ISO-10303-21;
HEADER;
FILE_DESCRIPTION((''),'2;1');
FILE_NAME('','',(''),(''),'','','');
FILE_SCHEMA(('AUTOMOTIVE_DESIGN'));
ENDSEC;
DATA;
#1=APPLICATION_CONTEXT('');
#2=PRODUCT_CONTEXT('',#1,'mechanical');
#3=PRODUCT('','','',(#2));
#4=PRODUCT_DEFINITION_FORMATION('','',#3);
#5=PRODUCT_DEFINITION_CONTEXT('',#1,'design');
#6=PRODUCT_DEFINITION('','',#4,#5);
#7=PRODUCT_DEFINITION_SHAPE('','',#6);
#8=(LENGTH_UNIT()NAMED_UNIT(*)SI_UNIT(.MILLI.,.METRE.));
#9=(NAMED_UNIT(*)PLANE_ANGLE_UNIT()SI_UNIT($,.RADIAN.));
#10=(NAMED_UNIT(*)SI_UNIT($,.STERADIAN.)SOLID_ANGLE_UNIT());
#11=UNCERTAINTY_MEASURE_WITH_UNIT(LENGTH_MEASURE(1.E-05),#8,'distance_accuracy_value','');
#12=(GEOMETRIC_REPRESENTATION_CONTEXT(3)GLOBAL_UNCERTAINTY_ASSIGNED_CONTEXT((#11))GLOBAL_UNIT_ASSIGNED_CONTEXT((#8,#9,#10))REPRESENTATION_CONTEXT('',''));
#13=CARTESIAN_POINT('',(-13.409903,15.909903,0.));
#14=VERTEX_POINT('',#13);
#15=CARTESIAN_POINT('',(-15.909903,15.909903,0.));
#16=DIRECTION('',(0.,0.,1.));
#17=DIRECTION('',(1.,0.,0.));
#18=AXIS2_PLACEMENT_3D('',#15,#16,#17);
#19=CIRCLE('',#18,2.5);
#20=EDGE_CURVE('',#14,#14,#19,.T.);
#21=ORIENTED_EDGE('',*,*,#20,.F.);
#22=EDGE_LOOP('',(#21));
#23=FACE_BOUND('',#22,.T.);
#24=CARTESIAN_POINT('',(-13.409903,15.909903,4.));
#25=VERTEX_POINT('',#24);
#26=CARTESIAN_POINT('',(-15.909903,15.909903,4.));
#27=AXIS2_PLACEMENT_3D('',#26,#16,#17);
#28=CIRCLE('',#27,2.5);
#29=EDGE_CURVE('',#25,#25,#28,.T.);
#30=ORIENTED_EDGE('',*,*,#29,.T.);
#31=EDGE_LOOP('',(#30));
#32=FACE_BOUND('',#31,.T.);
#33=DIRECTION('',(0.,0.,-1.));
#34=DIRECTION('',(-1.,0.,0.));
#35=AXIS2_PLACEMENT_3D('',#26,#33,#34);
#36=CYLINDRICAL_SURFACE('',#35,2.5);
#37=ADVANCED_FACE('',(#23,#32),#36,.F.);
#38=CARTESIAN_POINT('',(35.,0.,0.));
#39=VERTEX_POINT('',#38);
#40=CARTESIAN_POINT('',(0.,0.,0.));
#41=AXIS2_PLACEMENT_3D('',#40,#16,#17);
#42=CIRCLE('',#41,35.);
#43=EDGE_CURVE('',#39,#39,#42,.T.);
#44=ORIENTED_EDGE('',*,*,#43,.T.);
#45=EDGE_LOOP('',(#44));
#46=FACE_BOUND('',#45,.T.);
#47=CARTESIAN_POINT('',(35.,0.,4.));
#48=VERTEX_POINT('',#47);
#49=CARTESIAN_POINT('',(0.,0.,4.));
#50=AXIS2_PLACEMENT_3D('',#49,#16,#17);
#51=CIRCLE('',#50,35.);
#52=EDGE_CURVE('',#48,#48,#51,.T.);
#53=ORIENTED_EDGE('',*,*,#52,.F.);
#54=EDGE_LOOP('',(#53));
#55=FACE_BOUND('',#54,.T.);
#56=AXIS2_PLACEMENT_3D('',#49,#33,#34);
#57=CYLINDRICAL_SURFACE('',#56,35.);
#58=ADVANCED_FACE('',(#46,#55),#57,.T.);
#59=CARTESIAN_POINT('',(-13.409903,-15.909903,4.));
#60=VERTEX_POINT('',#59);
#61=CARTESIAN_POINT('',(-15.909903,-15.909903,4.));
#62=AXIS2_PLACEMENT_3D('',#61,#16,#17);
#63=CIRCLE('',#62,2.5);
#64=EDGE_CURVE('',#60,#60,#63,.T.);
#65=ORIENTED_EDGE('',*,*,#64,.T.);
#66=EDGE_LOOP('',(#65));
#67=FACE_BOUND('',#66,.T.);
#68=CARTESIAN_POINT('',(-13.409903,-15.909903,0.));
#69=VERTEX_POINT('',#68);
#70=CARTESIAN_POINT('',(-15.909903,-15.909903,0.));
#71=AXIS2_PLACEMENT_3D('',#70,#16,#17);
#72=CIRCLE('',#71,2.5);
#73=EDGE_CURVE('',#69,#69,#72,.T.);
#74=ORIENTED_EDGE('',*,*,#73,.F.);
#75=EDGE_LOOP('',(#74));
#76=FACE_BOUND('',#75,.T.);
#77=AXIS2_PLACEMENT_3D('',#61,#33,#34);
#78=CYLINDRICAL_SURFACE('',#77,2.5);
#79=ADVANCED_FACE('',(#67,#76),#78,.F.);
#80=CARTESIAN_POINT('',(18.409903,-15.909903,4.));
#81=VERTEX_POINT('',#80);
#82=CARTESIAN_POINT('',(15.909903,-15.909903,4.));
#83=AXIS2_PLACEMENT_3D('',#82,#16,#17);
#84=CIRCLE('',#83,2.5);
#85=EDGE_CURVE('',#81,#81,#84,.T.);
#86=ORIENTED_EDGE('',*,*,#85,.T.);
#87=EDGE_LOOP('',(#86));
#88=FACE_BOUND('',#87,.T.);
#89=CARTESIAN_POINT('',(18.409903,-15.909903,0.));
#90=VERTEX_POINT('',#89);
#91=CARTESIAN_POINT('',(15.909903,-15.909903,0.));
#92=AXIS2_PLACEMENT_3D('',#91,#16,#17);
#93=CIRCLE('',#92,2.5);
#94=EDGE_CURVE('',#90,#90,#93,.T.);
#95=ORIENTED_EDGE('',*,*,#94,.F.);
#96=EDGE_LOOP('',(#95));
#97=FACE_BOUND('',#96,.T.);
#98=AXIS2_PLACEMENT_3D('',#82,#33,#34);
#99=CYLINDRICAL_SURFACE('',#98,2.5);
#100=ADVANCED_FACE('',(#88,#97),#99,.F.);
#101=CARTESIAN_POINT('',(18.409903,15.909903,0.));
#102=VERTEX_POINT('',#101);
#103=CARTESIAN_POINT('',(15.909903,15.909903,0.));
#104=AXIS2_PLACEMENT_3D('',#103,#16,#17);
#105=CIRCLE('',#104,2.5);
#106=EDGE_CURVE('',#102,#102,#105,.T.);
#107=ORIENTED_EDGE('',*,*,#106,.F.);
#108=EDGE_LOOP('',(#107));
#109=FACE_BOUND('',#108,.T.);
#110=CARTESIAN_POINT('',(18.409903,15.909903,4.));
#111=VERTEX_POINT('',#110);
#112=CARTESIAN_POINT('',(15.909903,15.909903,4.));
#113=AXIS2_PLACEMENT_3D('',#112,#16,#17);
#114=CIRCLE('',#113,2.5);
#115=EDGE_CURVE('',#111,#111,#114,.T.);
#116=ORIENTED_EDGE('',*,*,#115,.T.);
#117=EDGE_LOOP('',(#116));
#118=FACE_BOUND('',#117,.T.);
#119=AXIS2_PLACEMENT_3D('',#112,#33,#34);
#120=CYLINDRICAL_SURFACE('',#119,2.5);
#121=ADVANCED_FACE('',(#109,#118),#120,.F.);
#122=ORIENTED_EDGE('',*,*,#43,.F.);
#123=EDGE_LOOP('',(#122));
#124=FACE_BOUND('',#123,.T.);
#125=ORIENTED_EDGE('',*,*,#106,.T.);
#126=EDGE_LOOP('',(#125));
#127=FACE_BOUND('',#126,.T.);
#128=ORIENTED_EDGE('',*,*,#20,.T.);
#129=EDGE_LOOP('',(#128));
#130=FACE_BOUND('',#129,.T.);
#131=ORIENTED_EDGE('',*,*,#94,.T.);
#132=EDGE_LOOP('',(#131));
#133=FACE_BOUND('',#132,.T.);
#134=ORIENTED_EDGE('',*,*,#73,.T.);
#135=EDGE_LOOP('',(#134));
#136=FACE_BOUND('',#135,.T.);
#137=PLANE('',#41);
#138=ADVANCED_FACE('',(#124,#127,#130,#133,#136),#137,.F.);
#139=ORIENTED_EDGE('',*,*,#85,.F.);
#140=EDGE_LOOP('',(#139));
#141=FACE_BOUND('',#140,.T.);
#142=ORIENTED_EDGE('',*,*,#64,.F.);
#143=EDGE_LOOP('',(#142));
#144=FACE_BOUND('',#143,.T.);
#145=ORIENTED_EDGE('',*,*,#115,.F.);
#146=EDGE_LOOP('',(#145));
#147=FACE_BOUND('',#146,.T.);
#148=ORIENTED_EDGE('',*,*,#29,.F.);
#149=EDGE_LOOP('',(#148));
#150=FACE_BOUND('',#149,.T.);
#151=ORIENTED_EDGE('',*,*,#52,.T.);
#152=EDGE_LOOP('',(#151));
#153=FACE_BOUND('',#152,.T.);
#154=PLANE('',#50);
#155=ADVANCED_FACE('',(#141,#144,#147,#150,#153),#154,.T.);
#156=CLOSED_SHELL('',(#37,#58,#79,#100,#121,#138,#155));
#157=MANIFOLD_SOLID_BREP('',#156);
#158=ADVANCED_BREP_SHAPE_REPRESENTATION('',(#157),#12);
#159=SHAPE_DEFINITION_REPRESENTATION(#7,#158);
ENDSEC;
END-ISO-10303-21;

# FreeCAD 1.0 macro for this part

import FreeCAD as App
import Part
import Sketcher
from FreeCAD import Vector
Q = App.Units.Quantity

doc = App.newDocument("Part")
body = doc.addObject("PartDesign::Body", "Body")

sketch1 = body.newObject("Sketcher::SketchObject", "Sketch")
sketch1.AttachmentSupport = (doc.getObject("XY_Plane"), [""])
sketch1.MapMode = "FlatFace"
sketch1.addGeometry(Part.Circle(Vector(0, 0, 0), Vector(0, 0, 1), 35), False)
sketch1.addGeometry(Part.Circle(Vector(-15.909903, -15.909903, 0), Vector(0, 0, 1), 2.5), False)
sketch1.addGeometry(Part.Circle(Vector(15.909903, -15.909903, 0), Vector(0, 0, 1), 2.5), False)
sketch1.addGeometry(Part.Circle(Vector(-15.909903, 15.909903, 0), Vector(0, 0, 1), 2.5), False)
sketch1.addGeometry(Part.Circle(Vector(15.909903, 15.909903, 0), Vector(0, 0, 1), 2.5), False)
sketch1.addConstraint(Sketcher.Constraint("Coincident", 0, 3, -1, 1))
sketch1.addConstraint(Sketcher.Constraint("Equal", 1, 2))
sketch1.addConstraint(Sketcher.Constraint("Equal", 2, 3))
sketch1.addConstraint(Sketcher.Constraint("Equal", 3, 4))
sketch1.addConstraint(Sketcher.Constraint("Symmetric", 2, 3, 3, 3, -1, 1))
sketch1.addConstraint(Sketcher.Constraint("Symmetric", 1, 3, 4, 3, -1, 1))
sketch1.addConstraint(Sketcher.Constraint("Symmetric", 1, 3, 2, 3, -2))
sketch1.addConstraint(Sketcher.Constraint("Diameter", 0, Q("70 mm")))
sketch1.addConstraint(Sketcher.Constraint("Diameter", 1, Q("5 mm")))
sketch1.addConstraint(Sketcher.Constraint("DistanceX", 1, 3, -1, 1, Q("15.909903 mm")))
sketch1.addConstraint(Sketcher.Constraint("DistanceY", 1, 3, -1, 1, Q("15.909903 mm")))
pad1 = body.newObject("PartDesign::Pad", "Pad")
pad1.Profile = sketch1
pad1.Length = 4

doc.recompute()
